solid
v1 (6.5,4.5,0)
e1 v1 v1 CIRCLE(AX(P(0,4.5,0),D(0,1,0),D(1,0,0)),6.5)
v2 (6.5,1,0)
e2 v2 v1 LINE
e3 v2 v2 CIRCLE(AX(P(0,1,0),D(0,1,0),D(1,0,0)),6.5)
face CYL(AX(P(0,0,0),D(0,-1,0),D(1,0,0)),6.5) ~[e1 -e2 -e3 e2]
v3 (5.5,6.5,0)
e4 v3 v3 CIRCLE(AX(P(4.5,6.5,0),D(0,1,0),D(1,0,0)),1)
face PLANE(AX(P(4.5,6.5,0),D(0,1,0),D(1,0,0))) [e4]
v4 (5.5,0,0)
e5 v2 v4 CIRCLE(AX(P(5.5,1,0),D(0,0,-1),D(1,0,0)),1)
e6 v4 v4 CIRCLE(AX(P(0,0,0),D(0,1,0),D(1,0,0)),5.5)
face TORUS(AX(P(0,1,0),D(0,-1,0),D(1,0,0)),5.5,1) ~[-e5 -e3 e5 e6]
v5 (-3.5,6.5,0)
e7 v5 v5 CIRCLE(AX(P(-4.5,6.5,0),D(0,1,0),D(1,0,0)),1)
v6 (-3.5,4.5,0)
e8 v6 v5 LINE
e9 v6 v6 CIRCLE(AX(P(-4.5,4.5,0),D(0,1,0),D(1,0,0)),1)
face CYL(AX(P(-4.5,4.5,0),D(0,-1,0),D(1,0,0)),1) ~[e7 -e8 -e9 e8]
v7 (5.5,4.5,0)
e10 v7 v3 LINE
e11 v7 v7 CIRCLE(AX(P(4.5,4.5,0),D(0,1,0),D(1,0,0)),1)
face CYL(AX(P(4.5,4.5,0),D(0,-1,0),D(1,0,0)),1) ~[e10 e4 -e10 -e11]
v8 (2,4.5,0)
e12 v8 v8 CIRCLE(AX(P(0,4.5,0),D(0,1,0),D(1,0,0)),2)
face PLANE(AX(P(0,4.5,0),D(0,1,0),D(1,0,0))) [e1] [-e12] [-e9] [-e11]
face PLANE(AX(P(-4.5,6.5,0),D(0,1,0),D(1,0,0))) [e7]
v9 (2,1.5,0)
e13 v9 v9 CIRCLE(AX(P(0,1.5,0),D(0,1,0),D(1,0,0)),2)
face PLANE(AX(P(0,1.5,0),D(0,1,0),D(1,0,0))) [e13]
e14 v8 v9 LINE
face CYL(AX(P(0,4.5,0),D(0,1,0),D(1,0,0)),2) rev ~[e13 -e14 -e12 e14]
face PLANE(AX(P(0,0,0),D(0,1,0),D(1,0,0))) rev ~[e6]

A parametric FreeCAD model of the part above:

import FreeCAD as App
import Part
import Sketcher


def edges_at(feature, points):
    """Names of the edges that pass closest to the given points."""
    edges = feature.Shape.Edges
    near = lambda p: min(range(len(edges)), key=lambda i: edges[i].distToShape(Part.Vertex(*p))[0])
    return sorted({f"Edge{near(p) + 1}" for p in points})

doc = App.newDocument("Part")
body = doc.addObject("PartDesign::Body", "Body")

# Sketch on XY plane
sketch1 = body.newObject("Sketcher::SketchObject", "Sketch")
sketch1.AttachmentSupport = (doc.getObject("XY_Plane"), [""])
sketch1.MapMode = "FlatFace"
sketch1.addGeometry(Part.Circle(App.Vector(0, 0, 0), App.Vector(0, 0, 1), 6), False)
sketch1.addConstraint([
    Sketcher.Constraint("Coincident", 0, 3, -1, 1),
    Sketcher.Constraint("Diameter", 0, 13.0),
])
pad1 = body.newObject("PartDesign::Pad", "Pad")
pad1.Profile = sketch1
pad1.Length = 4.5

# Sketch on XY plane
sketch2 = body.newObject("Sketcher::SketchObject", "Sketch001")
sketch2.AttachmentSupport = (doc.getObject("XY_Plane"), [""])
sketch2.MapMode = "FlatFace"
sketch2.AttachmentOffset = App.Placement(App.Vector(0, 0, 4.5), App.Rotation())
sketch2.addGeometry(Part.Circle(App.Vector(0, 0, 0), App.Vector(0, 0, 1), 2), False)
sketch2.addConstraint([
    Sketcher.Constraint("Coincident", 0, 3, -1, 1),
    Sketcher.Constraint("Diameter", 0, 4.0),
])
pocket1 = body.newObject("PartDesign::Pocket", "Pocket")
pocket1.Profile = sketch2
pocket1.Length = 3

# Sketch on XY plane
sketch3 = body.newObject("Sketcher::SketchObject", "Sketch002")
sketch3.AttachmentSupport = (doc.getObject("XY_Plane"), [""])
sketch3.MapMode = "FlatFace"
sketch3.AttachmentOffset = App.Placement(App.Vector(0, 0, 4.5), App.Rotation())
sketch3.addGeometry([
    Part.Circle(App.Vector(-4.5, 0, 0), App.Vector(0, 0, 1), 1),
    Part.Circle(App.Vector(4.5, 0, 0), App.Vector(0, 0, 1), 1),
], False)
sketch3.addConstraint([
    Sketcher.Constraint("Equal", 0, 1),
    Sketcher.Constraint("Symmetric", 0, 3, 1, 3, -1, 1),
    Sketcher.Constraint("PointOnObject", 0, 3, -1),
    Sketcher.Constraint("Diameter", 0, 2.0),
    Sketcher.Constraint("DistanceX", 0, 3, 1, 3, 9.0),
])
pad2 = body.newObject("PartDesign::Pad", "Pad001")
pad2.Profile = sketch3
pad2.Length = 2
doc.recompute()

fillet = body.newObject("PartDesign::Fillet", "Fillet")
fillet.Base = (pad2, edges_at(pad2, [(-6.5, 0, 0)]))
fillet.Radius = 1
body2 = doc.addObject("PartDesign::Body", "Body001")
doc.recompute()

body.Placement = App.Placement(App.Vector(0, 0, 0), App.Rotation(App.Vector(1, 0, 0), 270))
boolean = body2.newObject("PartDesign::Boolean", "Boolean")
boolean.Type = "Fuse"
boolean.addObjects([body])

doc.recompute()
